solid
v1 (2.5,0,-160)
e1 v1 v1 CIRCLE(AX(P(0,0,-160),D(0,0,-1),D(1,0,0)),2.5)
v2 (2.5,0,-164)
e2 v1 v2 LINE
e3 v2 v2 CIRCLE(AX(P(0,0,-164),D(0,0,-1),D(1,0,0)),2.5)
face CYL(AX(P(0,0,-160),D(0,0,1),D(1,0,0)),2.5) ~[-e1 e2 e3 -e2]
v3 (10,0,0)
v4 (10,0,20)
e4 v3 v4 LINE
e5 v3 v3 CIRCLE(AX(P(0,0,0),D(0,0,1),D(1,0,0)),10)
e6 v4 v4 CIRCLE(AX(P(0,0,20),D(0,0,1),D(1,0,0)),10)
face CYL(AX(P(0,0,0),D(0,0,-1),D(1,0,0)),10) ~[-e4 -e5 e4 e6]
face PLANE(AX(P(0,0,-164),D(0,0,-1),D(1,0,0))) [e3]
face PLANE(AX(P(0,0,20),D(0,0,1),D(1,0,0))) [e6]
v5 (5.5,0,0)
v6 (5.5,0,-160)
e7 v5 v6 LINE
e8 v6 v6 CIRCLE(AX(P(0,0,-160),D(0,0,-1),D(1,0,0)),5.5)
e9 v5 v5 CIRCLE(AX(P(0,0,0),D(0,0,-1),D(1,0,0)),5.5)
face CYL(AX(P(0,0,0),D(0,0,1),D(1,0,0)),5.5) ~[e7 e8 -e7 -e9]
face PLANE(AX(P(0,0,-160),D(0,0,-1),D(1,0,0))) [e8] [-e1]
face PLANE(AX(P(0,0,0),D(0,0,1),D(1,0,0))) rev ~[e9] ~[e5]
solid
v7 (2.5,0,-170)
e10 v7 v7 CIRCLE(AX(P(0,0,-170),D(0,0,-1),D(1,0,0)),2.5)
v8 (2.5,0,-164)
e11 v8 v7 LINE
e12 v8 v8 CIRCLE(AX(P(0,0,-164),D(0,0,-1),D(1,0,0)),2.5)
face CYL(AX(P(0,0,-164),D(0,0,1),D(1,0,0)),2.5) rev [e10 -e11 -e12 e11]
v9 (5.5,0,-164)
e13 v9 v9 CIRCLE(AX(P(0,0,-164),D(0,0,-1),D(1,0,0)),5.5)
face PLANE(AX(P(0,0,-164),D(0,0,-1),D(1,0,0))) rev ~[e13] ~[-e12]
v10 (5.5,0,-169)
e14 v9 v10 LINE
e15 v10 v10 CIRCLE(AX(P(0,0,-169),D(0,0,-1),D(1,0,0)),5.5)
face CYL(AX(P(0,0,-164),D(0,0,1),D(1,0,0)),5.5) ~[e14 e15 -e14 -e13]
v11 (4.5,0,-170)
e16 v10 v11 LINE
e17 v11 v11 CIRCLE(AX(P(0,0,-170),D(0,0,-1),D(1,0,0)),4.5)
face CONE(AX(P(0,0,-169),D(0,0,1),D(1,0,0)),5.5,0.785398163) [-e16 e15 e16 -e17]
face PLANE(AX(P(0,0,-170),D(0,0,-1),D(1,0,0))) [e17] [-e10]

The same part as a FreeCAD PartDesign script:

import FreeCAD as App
import Part
import Sketcher

V = App.Vector


def edges_at(feature, points):
    """Names of the edges that pass closest to the given points."""
    edges = feature.Shape.Edges
    near = lambda p: min(range(len(edges)), key=lambda i: edges[i].distToShape(Part.Vertex(*p))[0])
    return sorted({f"Edge{near(p) + 1}" for p in points})

doc = App.newDocument("Part")
body = doc.addObject("PartDesign::Body", "Body")

# Sketch on XY plane
sketch1 = body.newObject("Sketcher::SketchObject", "Sketch")
sketch1.AttachmentSupport = (doc.getObject("XY_Plane"), [""])
sketch1.MapMode = "FlatFace"
sketch1.addGeometry(Part.Circle(V(0, 0, 0), V(0, 0, 1), 10), False)
sketch1.addConstraint(Sketcher.Constraint("Coincident", 0, 3, -1, 1))
sketch1.addConstraint(Sketcher.Constraint("Diameter", 0, 20.0))
pad1 = body.newObject("PartDesign::Pad", "Pad")
pad1.Profile = sketch1
pad1.Length = 20

# Sketch on XY plane
sketch2 = body.newObject("Sketcher::SketchObject", "Sketch001")
sketch2.AttachmentSupport = (doc.getObject("XY_Plane"), [""])
sketch2.MapMode = "FlatFace"
sketch2.addGeometry(Part.Circle(V(0, 0, 0), V(0, 0, 1), 5.5), False)
sketch2.addConstraint(Sketcher.Constraint("Coincident", 0, 3, -1, 1))
sketch2.addConstraint(Sketcher.Constraint("Diameter", 0, 11.0))
pad2 = body.newObject("PartDesign::Pad", "Pad001")
pad2.Profile = sketch2
pad2.Length = 160
pad2.Reversed = True

# Sketch on XY plane
sketch3 = body.newObject("Sketcher::SketchObject", "Sketch002")
sketch3.AttachmentSupport = (doc.getObject("XY_Plane"), [""])
sketch3.MapMode = "FlatFace"
sketch3.AttachmentOffset = App.Placement(V(0, 0, -160), App.Rotation())
sketch3.addGeometry(Part.Circle(V(0, 0, 0), V(0, 0, 1), 2.5), False)
sketch3.addConstraint(Sketcher.Constraint("Coincident", 0, 3, -1, 1))
sketch3.addConstraint(Sketcher.Constraint("Diameter", 0, 5.0))
pad3 = body.newObject("PartDesign::Pad", "Pad002")
pad3.Profile = sketch3
pad3.Length = 4
pad3.Reversed = True
body2 = doc.addObject("PartDesign::Body", "Body001")

# Sketch on XY plane
sketch4 = body2.newObject("Sketcher::SketchObject", "Sketch003")
sketch4.AttachmentSupport = (doc.getObject("XY_Plane001"), [""])
sketch4.MapMode = "FlatFace"
sketch4.AttachmentOffset = App.Placement(V(0, 0, -164), App.Rotation())
sketch4.addGeometry(Part.Circle(V(0, 0, 0), V(0, 0, 1), 5.5), False)
sketch4.addGeometry(Part.Circle(V(0, 0, 0), V(0, 0, 1), 2.5), False)
sketch4.addConstraint(Sketcher.Constraint("Coincident", 0, 3, -1, 1))
sketch4.addConstraint(Sketcher.Constraint("Coincident", 1, 3, -1, 1))
sketch4.addConstraint(Sketcher.Constraint("Diameter", 0, 11.0))
sketch4.addConstraint(Sketcher.Constraint("Diameter", 1, 5.0))
pad4 = body2.newObject("PartDesign::Pad", "Pad003")
pad4.Profile = sketch4
pad4.Length = 6
pad4.Reversed = True
doc.recompute()

chamfer = body2.newObject("PartDesign::Chamfer", "Chamfer")
chamfer.Base = (pad4, edges_at(pad4, [(-5.5, 0, -170)]))
chamfer.Size = 1

doc.recompute()
